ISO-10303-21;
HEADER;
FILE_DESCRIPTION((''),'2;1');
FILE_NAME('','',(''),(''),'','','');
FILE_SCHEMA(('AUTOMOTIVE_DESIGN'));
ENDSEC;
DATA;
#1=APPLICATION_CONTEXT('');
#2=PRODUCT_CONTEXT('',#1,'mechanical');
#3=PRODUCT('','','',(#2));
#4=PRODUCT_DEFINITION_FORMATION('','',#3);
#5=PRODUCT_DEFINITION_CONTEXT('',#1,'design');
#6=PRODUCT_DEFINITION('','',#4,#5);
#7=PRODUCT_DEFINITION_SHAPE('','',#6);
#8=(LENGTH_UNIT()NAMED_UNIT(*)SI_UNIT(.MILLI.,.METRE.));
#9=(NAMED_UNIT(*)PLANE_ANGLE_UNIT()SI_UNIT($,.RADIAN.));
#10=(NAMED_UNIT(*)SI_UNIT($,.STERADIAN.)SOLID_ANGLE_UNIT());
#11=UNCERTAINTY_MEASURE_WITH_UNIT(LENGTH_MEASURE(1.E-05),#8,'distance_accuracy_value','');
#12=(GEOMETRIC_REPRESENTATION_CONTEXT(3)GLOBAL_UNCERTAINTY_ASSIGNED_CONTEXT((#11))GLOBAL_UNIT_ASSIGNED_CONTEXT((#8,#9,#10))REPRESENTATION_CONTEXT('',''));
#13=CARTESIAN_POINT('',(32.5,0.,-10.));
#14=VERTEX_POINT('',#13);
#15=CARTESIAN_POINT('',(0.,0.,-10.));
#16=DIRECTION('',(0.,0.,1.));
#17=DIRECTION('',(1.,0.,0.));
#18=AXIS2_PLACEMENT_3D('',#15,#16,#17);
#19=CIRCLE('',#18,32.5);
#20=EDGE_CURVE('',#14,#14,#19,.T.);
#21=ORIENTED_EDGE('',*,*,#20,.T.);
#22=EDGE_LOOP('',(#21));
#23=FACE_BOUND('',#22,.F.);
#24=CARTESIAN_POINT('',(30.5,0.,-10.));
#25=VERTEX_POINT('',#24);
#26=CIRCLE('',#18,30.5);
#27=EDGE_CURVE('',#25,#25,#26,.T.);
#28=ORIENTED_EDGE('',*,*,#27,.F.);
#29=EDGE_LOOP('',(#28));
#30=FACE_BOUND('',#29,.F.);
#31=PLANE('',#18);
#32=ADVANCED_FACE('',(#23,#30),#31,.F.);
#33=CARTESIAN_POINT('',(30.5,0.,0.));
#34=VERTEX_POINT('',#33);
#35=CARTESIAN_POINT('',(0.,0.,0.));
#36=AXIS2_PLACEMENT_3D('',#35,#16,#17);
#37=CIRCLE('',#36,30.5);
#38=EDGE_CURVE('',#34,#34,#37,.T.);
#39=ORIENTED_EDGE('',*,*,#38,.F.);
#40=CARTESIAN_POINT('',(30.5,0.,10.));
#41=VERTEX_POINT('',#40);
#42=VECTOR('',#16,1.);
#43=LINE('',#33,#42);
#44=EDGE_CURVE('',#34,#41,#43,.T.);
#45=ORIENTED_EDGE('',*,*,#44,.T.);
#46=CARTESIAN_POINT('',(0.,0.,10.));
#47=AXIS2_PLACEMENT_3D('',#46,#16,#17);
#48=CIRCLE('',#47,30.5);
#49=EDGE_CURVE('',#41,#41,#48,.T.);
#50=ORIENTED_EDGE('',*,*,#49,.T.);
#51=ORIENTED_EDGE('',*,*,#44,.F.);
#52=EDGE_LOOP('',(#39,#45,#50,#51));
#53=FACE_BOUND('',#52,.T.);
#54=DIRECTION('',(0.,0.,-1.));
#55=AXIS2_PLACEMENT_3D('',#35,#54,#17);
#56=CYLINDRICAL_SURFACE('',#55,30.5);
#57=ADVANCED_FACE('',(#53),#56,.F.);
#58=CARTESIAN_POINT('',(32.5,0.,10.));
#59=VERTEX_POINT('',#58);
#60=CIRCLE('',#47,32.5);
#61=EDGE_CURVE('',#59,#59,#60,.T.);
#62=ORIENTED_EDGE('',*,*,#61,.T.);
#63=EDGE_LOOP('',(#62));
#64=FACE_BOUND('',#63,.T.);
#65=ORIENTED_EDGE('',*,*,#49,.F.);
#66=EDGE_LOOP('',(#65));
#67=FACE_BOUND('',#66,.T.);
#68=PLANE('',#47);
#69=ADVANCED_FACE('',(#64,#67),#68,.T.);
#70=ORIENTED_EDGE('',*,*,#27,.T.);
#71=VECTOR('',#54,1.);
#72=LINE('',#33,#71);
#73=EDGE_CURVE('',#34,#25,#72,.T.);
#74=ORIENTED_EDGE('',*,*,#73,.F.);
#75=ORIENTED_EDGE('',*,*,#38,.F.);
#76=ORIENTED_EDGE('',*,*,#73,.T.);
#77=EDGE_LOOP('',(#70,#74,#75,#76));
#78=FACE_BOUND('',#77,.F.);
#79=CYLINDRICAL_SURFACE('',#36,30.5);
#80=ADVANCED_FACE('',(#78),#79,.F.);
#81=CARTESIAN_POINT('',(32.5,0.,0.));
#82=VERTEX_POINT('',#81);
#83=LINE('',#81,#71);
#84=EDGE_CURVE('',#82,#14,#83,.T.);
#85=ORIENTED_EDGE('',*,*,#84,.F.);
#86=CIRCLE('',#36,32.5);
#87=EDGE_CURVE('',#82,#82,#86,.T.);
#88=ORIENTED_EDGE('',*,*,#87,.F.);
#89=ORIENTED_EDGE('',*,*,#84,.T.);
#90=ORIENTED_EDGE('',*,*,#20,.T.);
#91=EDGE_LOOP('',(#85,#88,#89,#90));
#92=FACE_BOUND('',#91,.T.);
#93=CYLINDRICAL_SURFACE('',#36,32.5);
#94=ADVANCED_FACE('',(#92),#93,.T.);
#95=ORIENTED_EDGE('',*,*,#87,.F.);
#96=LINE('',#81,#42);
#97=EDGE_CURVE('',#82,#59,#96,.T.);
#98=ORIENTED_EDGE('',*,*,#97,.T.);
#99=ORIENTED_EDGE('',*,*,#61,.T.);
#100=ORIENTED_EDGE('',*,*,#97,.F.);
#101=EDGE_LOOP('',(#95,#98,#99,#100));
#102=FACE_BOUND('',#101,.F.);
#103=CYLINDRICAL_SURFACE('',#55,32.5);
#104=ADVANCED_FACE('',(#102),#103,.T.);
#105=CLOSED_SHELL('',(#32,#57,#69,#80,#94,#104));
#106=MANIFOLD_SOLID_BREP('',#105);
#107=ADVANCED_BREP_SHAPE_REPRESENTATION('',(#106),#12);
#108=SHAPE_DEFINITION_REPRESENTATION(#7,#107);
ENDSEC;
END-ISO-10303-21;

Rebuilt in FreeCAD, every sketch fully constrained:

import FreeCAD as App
import Part
import Sketcher

V = App.Vector

doc = App.newDocument("Part")
params = doc.addObject("Spreadsheet::Sheet", "Params")
for row, (alias, value) in enumerate([
    ("sketch1_diameter", "65 mm"),
    ("sketch1_diameter2", "61 mm"),
    ("pad1_length", "20 mm"),
], start=1):
    params.set(f"A{row}", alias)
    params.set(f"B{row}", "=" + value)
    params.setAlias(f"B{row}", alias)

body = doc.addObject("PartDesign::Body", "Body")

# Sketch on XY plane
sketch1 = body.newObject("Sketcher::SketchObject", "Sketch")
sketch1.AttachmentSupport = (doc.getObject("XY_Plane"), [""])
sketch1.MapMode = "FlatFace"
sketch1.addGeometry(Part.Circle(V(0, 0, 0), V(0, 0, 1), 32), False)
sketch1.addGeometry(Part.Circle(V(0, 0, 0), V(0, 0, 1), 30), False)
sketch1.addConstraint(Sketcher.Constraint("Coincident", 0, 3, -1, 1))
sketch1.addConstraint(Sketcher.Constraint("Coincident", 1, 3, -1, 1))
sketch1.addConstraint(Sketcher.Constraint("Diameter", 0, 65.0))
sketch1.addConstraint(Sketcher.Constraint("Diameter", 1, 61.0))
sketch1.setExpression("Constraints[2]", "Params.sketch1_diameter")
sketch1.setExpression("Constraints[3]", "Params.sketch1_diameter2")
pad1 = body.newObject("PartDesign::Pad", "Pad")
pad1.Profile = sketch1
pad1.setExpression("Length", "Params.pad1_length")
pad1.Midplane = True

doc.recompute()
